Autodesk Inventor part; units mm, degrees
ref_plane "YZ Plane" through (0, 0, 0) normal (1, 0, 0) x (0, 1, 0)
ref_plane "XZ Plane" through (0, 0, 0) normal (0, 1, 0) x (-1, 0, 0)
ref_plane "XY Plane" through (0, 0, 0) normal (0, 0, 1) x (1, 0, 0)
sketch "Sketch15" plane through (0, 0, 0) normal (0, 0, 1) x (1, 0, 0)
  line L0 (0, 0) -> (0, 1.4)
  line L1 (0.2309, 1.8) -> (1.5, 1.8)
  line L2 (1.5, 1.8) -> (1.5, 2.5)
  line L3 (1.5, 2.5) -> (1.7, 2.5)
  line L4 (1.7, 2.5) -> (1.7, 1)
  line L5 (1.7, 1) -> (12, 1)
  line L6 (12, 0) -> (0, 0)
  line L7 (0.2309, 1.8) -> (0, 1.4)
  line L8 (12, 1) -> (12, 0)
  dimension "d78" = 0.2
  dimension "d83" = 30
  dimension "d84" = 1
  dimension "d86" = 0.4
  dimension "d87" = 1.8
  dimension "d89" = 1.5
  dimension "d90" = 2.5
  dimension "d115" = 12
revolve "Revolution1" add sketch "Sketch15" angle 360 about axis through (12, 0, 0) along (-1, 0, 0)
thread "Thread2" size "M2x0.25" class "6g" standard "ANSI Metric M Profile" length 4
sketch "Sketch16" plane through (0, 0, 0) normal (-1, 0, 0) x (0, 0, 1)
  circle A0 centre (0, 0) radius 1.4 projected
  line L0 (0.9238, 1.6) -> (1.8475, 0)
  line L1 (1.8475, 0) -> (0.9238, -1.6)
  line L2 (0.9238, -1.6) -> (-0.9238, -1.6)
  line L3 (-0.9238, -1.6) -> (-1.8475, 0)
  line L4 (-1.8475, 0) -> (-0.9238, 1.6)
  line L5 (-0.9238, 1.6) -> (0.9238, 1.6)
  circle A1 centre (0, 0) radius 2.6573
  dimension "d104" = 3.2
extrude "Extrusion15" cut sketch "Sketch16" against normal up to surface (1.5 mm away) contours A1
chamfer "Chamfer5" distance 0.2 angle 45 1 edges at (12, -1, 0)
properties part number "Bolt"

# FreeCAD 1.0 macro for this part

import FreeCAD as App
import Part
import Sketcher
from FreeCAD import Vector


def edges_at(feature, points):
    """Names of the edges that pass closest to the given points."""
    edges = feature.Shape.Edges
    near = lambda p: min(range(len(edges)), key=lambda i: edges[i].distToShape(Part.Vertex(*p))[0])
    return sorted({f"Edge{near(p) + 1}" for p in points})


def add_polygon(sketch, points):
    """Adds a closed chain of lines whose ends are joined by coincident constraints."""
    first, n = sketch.GeometryCount, len(points)
    for a, b in zip(points, points[1:] + points[:1]):
        sketch.addGeometry(Part.LineSegment(App.Vector(*a, 0), App.Vector(*b, 0)), False)
    for i in range(n):
        sketch.addConstraint(Sketcher.Constraint("Coincident", first + i, 2, first + (i + 1) % n, 1))

doc = App.newDocument("Part")
body = doc.addObject("PartDesign::Body", "Body")

sketch1 = body.newObject("Sketcher::SketchObject", "Sketch")
sketch1.AttachmentSupport = (doc.getObject("XY_Plane"), [""])
sketch1.MapMode = "FlatFace"
add_polygon(sketch1, [(0, 1.4), (0, 0), (12, 0), (12, 1), (1.7, 1), (1.7, 2.5), (1.5, 2.5), (1.5, 1.8), (0.23, 1.8)])
sketch1.addConstraint([
    Sketcher.Constraint("Vertical", 0),
    Sketcher.Constraint("Horizontal", 1),
    Sketcher.Constraint("Vertical", 2),
    Sketcher.Constraint("Horizontal", 3),
    Sketcher.Constraint("Vertical", 4),
    Sketcher.Constraint("Horizontal", 5),
    Sketcher.Constraint("Vertical", 6),
    Sketcher.Constraint("Horizontal", 7),
    Sketcher.Constraint("Coincident", 0, 2, -1, 1),
    Sketcher.Constraint("DistanceX", 1, 1, 1, 2, 12.0),
    Sketcher.Constraint("DistanceY", 2, 1, 2, 2, 1.0),
    Sketcher.Constraint("DistanceX", 5, 2, 5, 1, 0.2),
    Sketcher.Constraint("DistanceY", 4, 1, 4, 2, 1.5),
    Sketcher.Constraint("DistanceX", -1, 1, 5, 2, 1.5),
    Sketcher.Constraint("DistanceY", -1, 1, 6, 2, 1.8),
    Sketcher.Constraint("DistanceY", 8, 2, 7, 2, 0.4),
    Sketcher.Constraint("DistanceX", 7, 2, 7, 1, 1.269),
])
revolution = body.newObject("PartDesign::Revolution", "Revolution")
revolution.Profile = sketch1
revolution.ReferenceAxis = (sketch1, ["H_Axis"])
revolution.Angle = 360

sketch2 = body.newObject("Sketcher::SketchObject", "Sketch001")
sketch2.AttachmentSupport = (doc.getObject("YZ_Plane"), [""])
sketch2.MapMode = "FlatFace"
sketch2.addGeometry(Part.Circle(Vector(0, 0, 0), Vector(0, 0, 1), 2.7), False)
add_polygon(sketch2, [(1.6, -0.9), (1.6, 0.9), (0, 1.8), (-1.6, 0.9), (-1.6, -0.9), (0, -1.8)])
sketch2.addConstraint([
    Sketcher.Constraint("Vertical", 1),
    Sketcher.Constraint("Vertical", 4),
    Sketcher.Constraint("Coincident", 0, 3, -1, 1),
    Sketcher.Constraint("Symmetric", 1, 2, 4, 2, -1, 1),
    Sketcher.Constraint("Symmetric", 2, 2, 5, 2, -1, 1),
    Sketcher.Constraint("PointOnObject", 2, 2, -2),
    Sketcher.Constraint("Parallel", 3, 6),
    Sketcher.Constraint("Horizontal", 1, 2, 3, 2),
    Sketcher.Constraint("DistanceX", 3, 2, 1, 2, 3.2),
    Sketcher.Constraint("Diameter", 0, 5.3146),
    Sketcher.Constraint("DistanceY", 1, 1, 1, 2, 1.8476),
    Sketcher.Constraint("DistanceY", 5, 2, 2, 2, 3.695),
])
pocket1 = body.newObject("PartDesign::Pocket", "Pocket")
pocket1.Profile = sketch2
pocket1.Length = 1.5
pocket1.Reversed = True
doc.recompute()

chamfer = body.newObject("PartDesign::Chamfer", "Chamfer")
chamfer.Base = (pocket1, edges_at(pocket1, [(12, -1, 0)]))
chamfer.Size = 0.2

doc.recompute()
